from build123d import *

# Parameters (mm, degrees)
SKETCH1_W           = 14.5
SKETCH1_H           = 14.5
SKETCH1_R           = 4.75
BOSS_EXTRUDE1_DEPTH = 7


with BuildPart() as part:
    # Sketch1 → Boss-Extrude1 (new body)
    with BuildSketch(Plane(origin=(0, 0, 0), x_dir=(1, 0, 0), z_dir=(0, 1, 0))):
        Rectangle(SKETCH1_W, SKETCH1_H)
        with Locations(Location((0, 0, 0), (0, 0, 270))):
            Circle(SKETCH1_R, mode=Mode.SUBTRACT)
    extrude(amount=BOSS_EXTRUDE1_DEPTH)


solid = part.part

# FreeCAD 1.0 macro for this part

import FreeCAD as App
import Part
import Sketcher
Q = App.Units.Quantity


def add_polygon(sketch, points):
    """Adds a closed chain of lines whose ends are joined by coincident constraints."""
    first, n = sketch.GeometryCount, len(points)
    for a, b in zip(points, points[1:] + points[:1]):
        sketch.addGeometry(Part.LineSegment(App.Vector(*a, 0), App.Vector(*b, 0)), False)
    for i in range(n):
        sketch.addConstraint(Sketcher.Constraint("Coincident", first + i, 2, first + (i + 1) % n, 1))

doc = App.newDocument("Part")
body = doc.addObject("PartDesign::Body", "Body")

# Sketch on XZ plane
sketch1 = body.newObject("Sketcher::SketchObject", "Sketch")
sketch1.AttachmentSupport = (doc.getObject("XZ_Plane"), [""])
sketch1.MapMode = "FlatFace"
add_polygon(sketch1, [(-7.2, -7.2), (-7.2, 7.2), (7.2, 7.2), (7.2, -7.2)])  # lines 0-3
sketch1.addGeometry(Part.Circle(App.Vector(0, 0, 0), App.Vector(0, 0, 1), 4.8), False)  # 4
sketch1.addConstraint([
    Sketcher.Constraint("Vertical", 0),
    Sketcher.Constraint("Horizontal", 1),
    Sketcher.Constraint("Vertical", 2),
    Sketcher.Constraint("Horizontal", 3),
    Sketcher.Constraint("Coincident", 4, 3, -1, 1),
    Sketcher.Constraint("Symmetric", 0, 2, 2, 2, -1, 1),
    Sketcher.Constraint("Equal", 3, 0),
    Sketcher.Constraint("Diameter", 4, Q("9.5 mm")),
    Sketcher.Constraint("DistanceX", 1, 1, 1, 2, Q("14.5 mm")),
])
pad1 = body.newObject("PartDesign::Pad", "Pad")
pad1.Profile = sketch1
pad1.Length = 7
pad1.Reversed = True

doc.recompute()
